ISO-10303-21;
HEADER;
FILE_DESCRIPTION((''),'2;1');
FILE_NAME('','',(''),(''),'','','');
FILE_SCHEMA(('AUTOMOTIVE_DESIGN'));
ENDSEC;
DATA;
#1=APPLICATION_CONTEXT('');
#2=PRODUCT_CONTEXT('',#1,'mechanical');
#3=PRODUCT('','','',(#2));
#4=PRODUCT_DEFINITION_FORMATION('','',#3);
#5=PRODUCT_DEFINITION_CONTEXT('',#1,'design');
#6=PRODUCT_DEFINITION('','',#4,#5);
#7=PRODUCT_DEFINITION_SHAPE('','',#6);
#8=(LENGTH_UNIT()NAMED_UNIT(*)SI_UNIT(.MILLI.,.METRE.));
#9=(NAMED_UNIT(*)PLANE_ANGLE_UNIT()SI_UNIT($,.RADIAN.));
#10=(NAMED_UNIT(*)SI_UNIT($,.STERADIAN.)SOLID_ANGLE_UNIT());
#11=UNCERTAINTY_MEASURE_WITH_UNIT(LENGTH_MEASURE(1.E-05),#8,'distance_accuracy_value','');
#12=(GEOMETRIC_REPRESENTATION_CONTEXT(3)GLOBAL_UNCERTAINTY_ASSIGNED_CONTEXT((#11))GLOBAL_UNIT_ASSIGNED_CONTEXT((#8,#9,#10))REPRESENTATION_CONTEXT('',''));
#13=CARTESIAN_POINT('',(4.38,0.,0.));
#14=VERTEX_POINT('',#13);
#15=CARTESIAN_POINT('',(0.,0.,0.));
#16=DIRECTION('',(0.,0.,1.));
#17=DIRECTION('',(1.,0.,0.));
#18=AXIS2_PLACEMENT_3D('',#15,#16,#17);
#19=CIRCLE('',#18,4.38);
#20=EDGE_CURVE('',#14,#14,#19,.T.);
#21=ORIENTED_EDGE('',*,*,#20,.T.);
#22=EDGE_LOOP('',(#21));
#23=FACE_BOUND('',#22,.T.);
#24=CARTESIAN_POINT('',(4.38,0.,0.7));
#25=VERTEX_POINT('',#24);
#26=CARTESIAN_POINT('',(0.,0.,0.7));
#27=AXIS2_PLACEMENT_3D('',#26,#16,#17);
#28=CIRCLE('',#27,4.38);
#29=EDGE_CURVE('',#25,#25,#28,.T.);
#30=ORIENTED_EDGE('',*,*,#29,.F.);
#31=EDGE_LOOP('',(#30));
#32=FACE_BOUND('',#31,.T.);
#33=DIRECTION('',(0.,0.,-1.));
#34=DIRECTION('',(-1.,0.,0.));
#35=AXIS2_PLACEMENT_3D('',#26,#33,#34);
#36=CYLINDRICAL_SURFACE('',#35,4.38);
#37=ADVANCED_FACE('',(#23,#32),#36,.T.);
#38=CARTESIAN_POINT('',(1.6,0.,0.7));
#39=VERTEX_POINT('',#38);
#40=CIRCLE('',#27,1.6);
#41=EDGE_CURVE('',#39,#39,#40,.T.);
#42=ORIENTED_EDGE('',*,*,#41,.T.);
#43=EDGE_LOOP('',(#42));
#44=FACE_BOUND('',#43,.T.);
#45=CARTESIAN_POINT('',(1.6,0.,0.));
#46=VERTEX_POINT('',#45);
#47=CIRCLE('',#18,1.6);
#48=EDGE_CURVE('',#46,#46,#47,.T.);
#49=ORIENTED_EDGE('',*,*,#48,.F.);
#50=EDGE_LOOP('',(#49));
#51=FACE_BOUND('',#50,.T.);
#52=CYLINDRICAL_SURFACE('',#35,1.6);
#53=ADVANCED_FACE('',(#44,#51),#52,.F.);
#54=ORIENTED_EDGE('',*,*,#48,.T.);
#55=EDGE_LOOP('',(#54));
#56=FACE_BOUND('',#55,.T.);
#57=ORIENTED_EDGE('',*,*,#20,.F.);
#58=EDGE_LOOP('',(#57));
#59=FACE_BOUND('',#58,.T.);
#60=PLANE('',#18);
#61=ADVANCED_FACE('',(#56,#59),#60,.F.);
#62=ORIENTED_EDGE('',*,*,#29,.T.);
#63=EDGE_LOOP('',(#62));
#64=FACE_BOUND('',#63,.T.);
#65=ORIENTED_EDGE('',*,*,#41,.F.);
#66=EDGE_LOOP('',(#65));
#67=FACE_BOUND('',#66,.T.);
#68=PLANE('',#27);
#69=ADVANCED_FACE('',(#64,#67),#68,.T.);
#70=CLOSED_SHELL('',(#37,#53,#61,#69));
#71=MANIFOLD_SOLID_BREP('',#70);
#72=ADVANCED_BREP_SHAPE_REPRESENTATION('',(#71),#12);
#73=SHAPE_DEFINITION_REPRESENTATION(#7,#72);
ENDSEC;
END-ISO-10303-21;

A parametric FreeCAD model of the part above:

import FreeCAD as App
import Part
import Sketcher
from FreeCAD import Vector

doc = App.newDocument("Part")
body = doc.addObject("PartDesign::Body", "Body")

# Sketch on XY plane
sketch1 = body.newObject("Sketcher::SketchObject", "Sketch")
sketch1.AttachmentSupport = (doc.getObject("XY_Plane"), [""])
sketch1.MapMode = "FlatFace"
sketch1.addGeometry(Part.Circle(Vector(0, 0, 0), Vector(0, 0, 1), 4.38), False)
sketch1.addGeometry(Part.Circle(Vector(0, 0, 0), Vector(0, 0, 1), 1.6), False)
sketch1.addConstraint(Sketcher.Constraint("Coincident", 0, 3, -1, 1))
sketch1.addConstraint(Sketcher.Constraint("Coincident", 1, 3, -1, 1))
sketch1.addConstraint(Sketcher.Constraint("Diameter", 1, 3.2))
sketch1.addConstraint(Sketcher.Constraint("Diameter", 0, 8.76))
pad1 = body.newObject("PartDesign::Pad", "Pad")
pad1.Profile = sketch1
pad1.Length = 0.7

doc.recompute()
